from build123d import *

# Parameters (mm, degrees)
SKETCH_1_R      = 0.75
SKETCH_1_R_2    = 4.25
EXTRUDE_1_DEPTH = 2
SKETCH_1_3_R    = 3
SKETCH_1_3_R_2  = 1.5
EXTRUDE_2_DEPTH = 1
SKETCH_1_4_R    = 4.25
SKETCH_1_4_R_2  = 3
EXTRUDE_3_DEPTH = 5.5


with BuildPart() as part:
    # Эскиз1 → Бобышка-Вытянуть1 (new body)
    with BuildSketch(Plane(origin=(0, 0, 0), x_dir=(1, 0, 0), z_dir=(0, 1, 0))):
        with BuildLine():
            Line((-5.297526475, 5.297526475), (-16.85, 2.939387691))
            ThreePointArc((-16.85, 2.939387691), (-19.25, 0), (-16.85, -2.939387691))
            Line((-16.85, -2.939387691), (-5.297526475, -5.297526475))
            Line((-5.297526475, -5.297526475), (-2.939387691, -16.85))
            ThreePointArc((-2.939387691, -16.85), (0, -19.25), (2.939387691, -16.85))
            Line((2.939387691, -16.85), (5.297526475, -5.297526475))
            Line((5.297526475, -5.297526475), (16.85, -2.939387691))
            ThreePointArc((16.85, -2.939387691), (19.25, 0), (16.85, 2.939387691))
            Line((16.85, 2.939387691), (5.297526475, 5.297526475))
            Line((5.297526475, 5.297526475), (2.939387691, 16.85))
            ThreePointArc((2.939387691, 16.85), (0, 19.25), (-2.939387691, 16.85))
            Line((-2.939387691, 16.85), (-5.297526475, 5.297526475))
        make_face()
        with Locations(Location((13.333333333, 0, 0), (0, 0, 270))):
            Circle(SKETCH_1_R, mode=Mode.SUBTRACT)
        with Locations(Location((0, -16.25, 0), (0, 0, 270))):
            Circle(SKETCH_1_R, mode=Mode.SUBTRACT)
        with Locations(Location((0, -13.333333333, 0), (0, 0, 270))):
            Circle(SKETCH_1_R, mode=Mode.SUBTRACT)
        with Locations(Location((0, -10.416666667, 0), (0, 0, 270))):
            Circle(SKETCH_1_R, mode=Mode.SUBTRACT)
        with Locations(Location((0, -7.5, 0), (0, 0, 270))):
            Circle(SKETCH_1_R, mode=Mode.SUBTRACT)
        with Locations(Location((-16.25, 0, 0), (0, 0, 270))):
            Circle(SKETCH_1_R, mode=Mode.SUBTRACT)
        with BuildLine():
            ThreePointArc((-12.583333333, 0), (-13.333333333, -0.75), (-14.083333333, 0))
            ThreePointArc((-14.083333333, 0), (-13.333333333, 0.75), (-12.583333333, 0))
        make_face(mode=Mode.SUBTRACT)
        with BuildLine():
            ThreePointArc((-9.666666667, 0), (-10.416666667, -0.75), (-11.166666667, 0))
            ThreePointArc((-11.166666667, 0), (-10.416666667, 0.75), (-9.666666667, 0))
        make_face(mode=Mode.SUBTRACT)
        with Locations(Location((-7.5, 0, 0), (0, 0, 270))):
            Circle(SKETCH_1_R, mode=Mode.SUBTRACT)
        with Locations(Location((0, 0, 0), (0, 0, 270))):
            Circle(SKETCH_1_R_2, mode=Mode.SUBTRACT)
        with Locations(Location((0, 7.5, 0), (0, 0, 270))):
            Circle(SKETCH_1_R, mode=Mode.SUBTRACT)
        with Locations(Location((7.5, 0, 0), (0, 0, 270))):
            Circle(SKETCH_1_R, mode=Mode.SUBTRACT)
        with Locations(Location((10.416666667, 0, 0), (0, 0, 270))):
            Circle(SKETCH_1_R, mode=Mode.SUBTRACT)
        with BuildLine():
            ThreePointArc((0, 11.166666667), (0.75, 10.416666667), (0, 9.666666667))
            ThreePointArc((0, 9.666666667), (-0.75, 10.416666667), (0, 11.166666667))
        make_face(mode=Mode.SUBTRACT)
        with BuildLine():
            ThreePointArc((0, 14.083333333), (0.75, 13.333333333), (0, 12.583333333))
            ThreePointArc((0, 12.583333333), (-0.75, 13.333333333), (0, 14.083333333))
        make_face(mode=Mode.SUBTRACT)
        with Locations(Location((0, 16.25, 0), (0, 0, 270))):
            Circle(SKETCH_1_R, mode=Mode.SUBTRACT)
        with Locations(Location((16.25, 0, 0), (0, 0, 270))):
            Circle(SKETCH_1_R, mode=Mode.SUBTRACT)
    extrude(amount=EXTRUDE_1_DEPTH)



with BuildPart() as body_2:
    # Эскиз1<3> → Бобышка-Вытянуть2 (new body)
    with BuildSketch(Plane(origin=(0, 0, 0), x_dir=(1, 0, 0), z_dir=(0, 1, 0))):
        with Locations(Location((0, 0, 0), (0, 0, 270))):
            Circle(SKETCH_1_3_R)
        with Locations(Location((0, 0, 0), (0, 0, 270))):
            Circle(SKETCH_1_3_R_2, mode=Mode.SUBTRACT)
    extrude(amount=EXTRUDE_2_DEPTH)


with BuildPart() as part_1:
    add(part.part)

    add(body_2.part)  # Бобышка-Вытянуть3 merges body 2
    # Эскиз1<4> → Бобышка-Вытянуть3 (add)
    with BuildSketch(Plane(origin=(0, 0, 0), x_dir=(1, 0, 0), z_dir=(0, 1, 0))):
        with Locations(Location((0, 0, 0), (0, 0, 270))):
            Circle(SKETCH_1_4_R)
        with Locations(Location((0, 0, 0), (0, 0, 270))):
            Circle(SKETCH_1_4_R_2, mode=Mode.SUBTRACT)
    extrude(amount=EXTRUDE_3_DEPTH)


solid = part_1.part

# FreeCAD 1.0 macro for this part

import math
import FreeCAD as App
import Part
import Sketcher
from FreeCAD import Vector

doc = App.newDocument("Part")
body = doc.addObject("PartDesign::Body", "Body")

sketch1 = doc.addObject("Sketcher::SketchObject", "Sketch")
body.addObject(sketch1)
sketch1.AttachmentSupport = (doc.XZ_Plane, [""])
sketch1.MapMode = "FlatFace"
sketch1.addGeometry(Part.LineSegment(Vector(-5.3, -5.3, 0), Vector(-16.9, -2.9, 0)), False)
sketch1.addGeometry(Part.ArcOfCircle(Part.Circle(Vector(-16.2, 0, 0), Vector(0, 0, 1), 3), math.radians(102), math.radians(258)), False)
sketch1.addGeometry(Part.LineSegment(Vector(-16.9, 2.9, 0), Vector(-5.3, 5.3, 0)), False)
sketch1.addGeometry(Part.LineSegment(Vector(-5.3, 5.3, 0), Vector(-2.9, 16.9, 0)), False)
sketch1.addGeometry(Part.ArcOfCircle(Part.Circle(Vector(0, 16.2, 0), Vector(0, 0, 1), 3), math.radians(12), math.radians(168)), False)
sketch1.addGeometry(Part.LineSegment(Vector(2.9, 16.9, 0), Vector(5.3, 5.3, 0)), False)
sketch1.addGeometry(Part.LineSegment(Vector(5.3, 5.3, 0), Vector(16.9, 2.9, 0)), False)
sketch1.addGeometry(Part.ArcOfCircle(Part.Circle(Vector(16.2, 0, 0), Vector(0, 0, 1), 3), math.radians(-78), math.radians(78)), False)
sketch1.addGeometry(Part.LineSegment(Vector(16.9, -2.9, 0), Vector(5.3, -5.3, 0)), False)
sketch1.addGeometry(Part.LineSegment(Vector(5.3, -5.3, 0), Vector(2.9, -16.9, 0)), False)
sketch1.addGeometry(Part.ArcOfCircle(Part.Circle(Vector(0, -16.2, 0), Vector(0, 0, 1), 3), math.radians(-168), math.radians(-12)), False)
sketch1.addGeometry(Part.LineSegment(Vector(-2.9, -16.9, 0), Vector(-5.3, -5.3, 0)), False)
sketch1.addGeometry(Part.Circle(Vector(0, 16.2, 0), Vector(0, 0, 1), 0.8), False)
sketch1.addGeometry(Part.Circle(Vector(0, 13.3, 0), Vector(0, 0, 1), 0.8), False)
sketch1.addGeometry(Part.Circle(Vector(0, 10.4, 0), Vector(0, 0, 1), 0.8), False)
sketch1.addGeometry(Part.Circle(Vector(0, 7.5, 0), Vector(0, 0, 1), 0.8), False)
sketch1.addGeometry(Part.Circle(Vector(-16.2, 0, 0), Vector(0, 0, 1), 0.8), False)
sketch1.addGeometry(Part.Circle(Vector(-13.3, 0, 0), Vector(0, 0, 1), 0.8), False)
sketch1.addGeometry(Part.Circle(Vector(-10.4, 0, 0), Vector(0, 0, 1), 0.8), False)
sketch1.addGeometry(Part.Circle(Vector(-7.5, 0, 0), Vector(0, 0, 1), 0.8), False)
sketch1.addGeometry(Part.Circle(Vector(0, 0, 0), Vector(0, 0, 1), 4.2), False)
sketch1.addGeometry(Part.Circle(Vector(7.5, 0, 0), Vector(0, 0, 1), 0.8), False)
sketch1.addGeometry(Part.Circle(Vector(0, -7.5, 0), Vector(0, 0, 1), 0.8), False)
sketch1.addGeometry(Part.Circle(Vector(10.4, 0, 0), Vector(0, 0, 1), 0.8), False)
sketch1.addGeometry(Part.Circle(Vector(13.3, 0, 0), Vector(0, 0, 1), 0.8), False)
sketch1.addGeometry(Part.Circle(Vector(16.2, 0, 0), Vector(0, 0, 1), 0.8), False)
sketch1.addGeometry(Part.Circle(Vector(0, -10.4, 0), Vector(0, 0, 1), 0.8), False)
sketch1.addGeometry(Part.Circle(Vector(0, -13.3, 0), Vector(0, 0, 1), 0.8), False)
sketch1.addGeometry(Part.Circle(Vector(0, -16.2, 0), Vector(0, 0, 1), 0.8), False)
sketch1.addConstraint(Sketcher.Constraint("Tangent", 0, 2, 1, 2))
sketch1.addConstraint(Sketcher.Constraint("Tangent", 1, 1, 2, 1))
sketch1.addConstraint(Sketcher.Constraint("Coincident", 2, 2, 3, 1))
sketch1.addConstraint(Sketcher.Constraint("Tangent", 3, 2, 4, 2))
sketch1.addConstraint(Sketcher.Constraint("Tangent", 4, 1, 5, 1))
sketch1.addConstraint(Sketcher.Constraint("Coincident", 5, 2, 6, 1))
sketch1.addConstraint(Sketcher.Constraint("Tangent", 6, 2, 7, 2))
sketch1.addConstraint(Sketcher.Constraint("Tangent", 7, 1, 8, 1))
sketch1.addConstraint(Sketcher.Constraint("Coincident", 8, 2, 9, 1))
sketch1.addConstraint(Sketcher.Constraint("Tangent", 9, 2, 10, 2))
sketch1.addConstraint(Sketcher.Constraint("Tangent", 10, 1, 11, 1))
sketch1.addConstraint(Sketcher.Constraint("Coincident", 11, 2, 0, 1))
sketch1.addConstraint(Sketcher.Constraint("Coincident", 20, 3, -1, 1))
sketch1.addConstraint(Sketcher.Constraint("Coincident", 12, 3, 4, 3))
sketch1.addConstraint(Sketcher.Constraint("Coincident", 16, 3, 1, 3))
sketch1.addConstraint(Sketcher.Constraint("Coincident", 25, 3, 7, 3))
sketch1.addConstraint(Sketcher.Constraint("Coincident", 28, 3, 10, 3))
sketch1.addConstraint(Sketcher.Constraint("Equal", 1, 4))
sketch1.addConstraint(Sketcher.Constraint("Equal", 4, 7))
sketch1.addConstraint(Sketcher.Constraint("Equal", 7, 10))
sketch1.addConstraint(Sketcher.Constraint("Equal", 12, 13))
sketch1.addConstraint(Sketcher.Constraint("Equal", 13, 14))
sketch1.addConstraint(Sketcher.Constraint("Equal", 14, 15))
sketch1.addConstraint(Sketcher.Constraint("Equal", 15, 16))
sketch1.addConstraint(Sketcher.Constraint("Equal", 16, 17))
sketch1.addConstraint(Sketcher.Constraint("Equal", 17, 18))
sketch1.addConstraint(Sketcher.Constraint("Equal", 18, 19))
sketch1.addConstraint(Sketcher.Constraint("Equal", 19, 21))
sketch1.addConstraint(Sketcher.Constraint("Equal", 21, 22))
sketch1.addConstraint(Sketcher.Constraint("Equal", 22, 23))
sketch1.addConstraint(Sketcher.Constraint("Equal", 23, 24))
sketch1.addConstraint(Sketcher.Constraint("Equal", 24, 25))
sketch1.addConstraint(Sketcher.Constraint("Equal", 25, 26))
sketch1.addConstraint(Sketcher.Constraint("Equal", 26, 27))
sketch1.addConstraint(Sketcher.Constraint("Equal", 27, 28))
sketch1.addConstraint(Sketcher.Constraint("Symmetric", 1, 3, 7, 3, -1, 1))
sketch1.addConstraint(Sketcher.Constraint("Symmetric", 4, 3, 10, 3, -1, 1))
sketch1.addConstraint(Sketcher.Constraint("Symmetric", 19, 3, 21, 3, -1, 1))
sketch1.addConstraint(Sketcher.Constraint("Symmetric", 15, 3, 22, 3, -1, 1))
sketch1.addConstraint(Sketcher.Constraint("Symmetric", 18, 3, 23, 3, -1, 1))
sketch1.addConstraint(Sketcher.Constraint("Symmetric", 17, 3, 24, 3, -1, 1))
sketch1.addConstraint(Sketcher.Constraint("Symmetric", 14, 3, 26, 3, -1, 1))
sketch1.addConstraint(Sketcher.Constraint("Symmetric", 13, 3, 27, 3, -1, 1))
sketch1.addConstraint(Sketcher.Constraint("Symmetric", 2, 2, 8, 2, -1, 1))
sketch1.addConstraint(Sketcher.Constraint("Symmetric", 5, 2, 11, 2, -1, 1))
sketch1.addConstraint(Sketcher.Constraint("Symmetric", 3, 2, 4, 1, -2))
sketch1.addConstraint(Sketcher.Constraint("Symmetric", 1, 1, 6, 2, -2))
sketch1.addConstraint(Sketcher.Constraint("PointOnObject", 13, 3, -2))
sketch1.addConstraint(Sketcher.Constraint("PointOnObject", 14, 3, -2))
sketch1.addConstraint(Sketcher.Constraint("PointOnObject", 15, 3, -2))
sketch1.addConstraint(Sketcher.Constraint("PointOnObject", 17, 3, -1))
sketch1.addConstraint(Sketcher.Constraint("PointOnObject", 18, 3, -1))
sketch1.addConstraint(Sketcher.Constraint("PointOnObject", 19, 3, -1))
sketch1.addConstraint(Sketcher.Constraint("Perpendicular", 0, 3))
sketch1.addConstraint(Sketcher.Constraint("Equal", 2, 3))
sketch1.addConstraint(Sketcher.Constraint("Radius", 1, 3.0))
sketch1.addConstraint(Sketcher.Constraint("Diameter", 12, 1.5))
sketch1.addConstraint(Sketcher.Constraint("Diameter", 20, 8.5))
sketch1.addConstraint(Sketcher.Constraint("DistanceX", 19, 3, 21, 3, 15.0))
sketch1.addConstraint(Sketcher.Constraint("DistanceY", -1, 1, 15, 3, 7.5))
sketch1.addConstraint(Sketcher.Constraint("DistanceX", 1, 3, 7, 3, 32.5))
sketch1.addConstraint(Sketcher.Constraint("DistanceX", 0, 2, 1, 3, 0.6))
sketch1.addConstraint(Sketcher.Constraint("DistanceY", 2, 2, 14, 3, 5.11914))
sketch1.addConstraint(Sketcher.Constraint("DistanceX", 18, 3, 2, 2, 5.11914))
sketch1.addConstraint(Sketcher.Constraint("DistanceY", -1, 1, 13, 3, 13.333333))
sketch1.addConstraint(Sketcher.Constraint("DistanceX", 17, 3, -1, 1, 13.333333))
pad1 = doc.addObject("PartDesign::Pad", "Pad")
body.addObject(pad1)
pad1.Profile = sketch1
pad1.Length = 2
pad1.Reversed = True
body2 = doc.addObject("PartDesign::Body", "Body001")

sketch2 = doc.addObject("Sketcher::SketchObject", "Sketch001")
body2.addObject(sketch2)
sketch2.AttachmentSupport = (doc.getObject("XZ_Plane001"), [""])
sketch2.MapMode = "FlatFace"
sketch2.addGeometry(Part.Circle(Vector(0, 0, 0), Vector(0, 0, 1), 3), False)
sketch2.addGeometry(Part.Circle(Vector(0, 0, 0), Vector(0, 0, 1), 1.5), False)
sketch2.addConstraint(Sketcher.Constraint("Coincident", 0, 3, -1, 1))
sketch2.addConstraint(Sketcher.Constraint("Coincident", 1, 3, -1, 1))
sketch2.addConstraint(Sketcher.Constraint("Diameter", 0, 6.0))
sketch2.addConstraint(Sketcher.Constraint("Diameter", 1, 3.0))
pad2 = doc.addObject("PartDesign::Pad", "Pad001")
body2.addObject(pad2)
pad2.Profile = sketch2
pad2.Length = 1
pad2.Reversed = True
body.AllowCompound = True
doc.recompute()

boolean = doc.addObject("PartDesign::Boolean", "Boolean")
body.addObject(boolean)
boolean.Type = "Fuse"
boolean.addObjects([body2])

sketch3 = doc.addObject("Sketcher::SketchObject", "Sketch002")
body.addObject(sketch3)
sketch3.AttachmentSupport = (doc.XZ_Plane, [""])
sketch3.MapMode = "FlatFace"
sketch3.addGeometry(Part.Circle(Vector(0, 0, 0), Vector(0, 0, 1), 4.2), False)
sketch3.addGeometry(Part.Circle(Vector(0, 0, 0), Vector(0, 0, 1), 3), False)
sketch3.addConstraint(Sketcher.Constraint("Coincident", 0, 3, -1, 1))
sketch3.addConstraint(Sketcher.Constraint("Coincident", 1, 3, -1, 1))
sketch3.addConstraint(Sketcher.Constraint("Diameter", 1, 6.0))
sketch3.addConstraint(Sketcher.Constraint("Diameter", 0, 8.5))
pad3 = doc.addObject("PartDesign::Pad", "Pad002")
body.addObject(pad3)
pad3.Profile = sketch3
pad3.Length = 5.5
pad3.Reversed = True

doc.recompute()
